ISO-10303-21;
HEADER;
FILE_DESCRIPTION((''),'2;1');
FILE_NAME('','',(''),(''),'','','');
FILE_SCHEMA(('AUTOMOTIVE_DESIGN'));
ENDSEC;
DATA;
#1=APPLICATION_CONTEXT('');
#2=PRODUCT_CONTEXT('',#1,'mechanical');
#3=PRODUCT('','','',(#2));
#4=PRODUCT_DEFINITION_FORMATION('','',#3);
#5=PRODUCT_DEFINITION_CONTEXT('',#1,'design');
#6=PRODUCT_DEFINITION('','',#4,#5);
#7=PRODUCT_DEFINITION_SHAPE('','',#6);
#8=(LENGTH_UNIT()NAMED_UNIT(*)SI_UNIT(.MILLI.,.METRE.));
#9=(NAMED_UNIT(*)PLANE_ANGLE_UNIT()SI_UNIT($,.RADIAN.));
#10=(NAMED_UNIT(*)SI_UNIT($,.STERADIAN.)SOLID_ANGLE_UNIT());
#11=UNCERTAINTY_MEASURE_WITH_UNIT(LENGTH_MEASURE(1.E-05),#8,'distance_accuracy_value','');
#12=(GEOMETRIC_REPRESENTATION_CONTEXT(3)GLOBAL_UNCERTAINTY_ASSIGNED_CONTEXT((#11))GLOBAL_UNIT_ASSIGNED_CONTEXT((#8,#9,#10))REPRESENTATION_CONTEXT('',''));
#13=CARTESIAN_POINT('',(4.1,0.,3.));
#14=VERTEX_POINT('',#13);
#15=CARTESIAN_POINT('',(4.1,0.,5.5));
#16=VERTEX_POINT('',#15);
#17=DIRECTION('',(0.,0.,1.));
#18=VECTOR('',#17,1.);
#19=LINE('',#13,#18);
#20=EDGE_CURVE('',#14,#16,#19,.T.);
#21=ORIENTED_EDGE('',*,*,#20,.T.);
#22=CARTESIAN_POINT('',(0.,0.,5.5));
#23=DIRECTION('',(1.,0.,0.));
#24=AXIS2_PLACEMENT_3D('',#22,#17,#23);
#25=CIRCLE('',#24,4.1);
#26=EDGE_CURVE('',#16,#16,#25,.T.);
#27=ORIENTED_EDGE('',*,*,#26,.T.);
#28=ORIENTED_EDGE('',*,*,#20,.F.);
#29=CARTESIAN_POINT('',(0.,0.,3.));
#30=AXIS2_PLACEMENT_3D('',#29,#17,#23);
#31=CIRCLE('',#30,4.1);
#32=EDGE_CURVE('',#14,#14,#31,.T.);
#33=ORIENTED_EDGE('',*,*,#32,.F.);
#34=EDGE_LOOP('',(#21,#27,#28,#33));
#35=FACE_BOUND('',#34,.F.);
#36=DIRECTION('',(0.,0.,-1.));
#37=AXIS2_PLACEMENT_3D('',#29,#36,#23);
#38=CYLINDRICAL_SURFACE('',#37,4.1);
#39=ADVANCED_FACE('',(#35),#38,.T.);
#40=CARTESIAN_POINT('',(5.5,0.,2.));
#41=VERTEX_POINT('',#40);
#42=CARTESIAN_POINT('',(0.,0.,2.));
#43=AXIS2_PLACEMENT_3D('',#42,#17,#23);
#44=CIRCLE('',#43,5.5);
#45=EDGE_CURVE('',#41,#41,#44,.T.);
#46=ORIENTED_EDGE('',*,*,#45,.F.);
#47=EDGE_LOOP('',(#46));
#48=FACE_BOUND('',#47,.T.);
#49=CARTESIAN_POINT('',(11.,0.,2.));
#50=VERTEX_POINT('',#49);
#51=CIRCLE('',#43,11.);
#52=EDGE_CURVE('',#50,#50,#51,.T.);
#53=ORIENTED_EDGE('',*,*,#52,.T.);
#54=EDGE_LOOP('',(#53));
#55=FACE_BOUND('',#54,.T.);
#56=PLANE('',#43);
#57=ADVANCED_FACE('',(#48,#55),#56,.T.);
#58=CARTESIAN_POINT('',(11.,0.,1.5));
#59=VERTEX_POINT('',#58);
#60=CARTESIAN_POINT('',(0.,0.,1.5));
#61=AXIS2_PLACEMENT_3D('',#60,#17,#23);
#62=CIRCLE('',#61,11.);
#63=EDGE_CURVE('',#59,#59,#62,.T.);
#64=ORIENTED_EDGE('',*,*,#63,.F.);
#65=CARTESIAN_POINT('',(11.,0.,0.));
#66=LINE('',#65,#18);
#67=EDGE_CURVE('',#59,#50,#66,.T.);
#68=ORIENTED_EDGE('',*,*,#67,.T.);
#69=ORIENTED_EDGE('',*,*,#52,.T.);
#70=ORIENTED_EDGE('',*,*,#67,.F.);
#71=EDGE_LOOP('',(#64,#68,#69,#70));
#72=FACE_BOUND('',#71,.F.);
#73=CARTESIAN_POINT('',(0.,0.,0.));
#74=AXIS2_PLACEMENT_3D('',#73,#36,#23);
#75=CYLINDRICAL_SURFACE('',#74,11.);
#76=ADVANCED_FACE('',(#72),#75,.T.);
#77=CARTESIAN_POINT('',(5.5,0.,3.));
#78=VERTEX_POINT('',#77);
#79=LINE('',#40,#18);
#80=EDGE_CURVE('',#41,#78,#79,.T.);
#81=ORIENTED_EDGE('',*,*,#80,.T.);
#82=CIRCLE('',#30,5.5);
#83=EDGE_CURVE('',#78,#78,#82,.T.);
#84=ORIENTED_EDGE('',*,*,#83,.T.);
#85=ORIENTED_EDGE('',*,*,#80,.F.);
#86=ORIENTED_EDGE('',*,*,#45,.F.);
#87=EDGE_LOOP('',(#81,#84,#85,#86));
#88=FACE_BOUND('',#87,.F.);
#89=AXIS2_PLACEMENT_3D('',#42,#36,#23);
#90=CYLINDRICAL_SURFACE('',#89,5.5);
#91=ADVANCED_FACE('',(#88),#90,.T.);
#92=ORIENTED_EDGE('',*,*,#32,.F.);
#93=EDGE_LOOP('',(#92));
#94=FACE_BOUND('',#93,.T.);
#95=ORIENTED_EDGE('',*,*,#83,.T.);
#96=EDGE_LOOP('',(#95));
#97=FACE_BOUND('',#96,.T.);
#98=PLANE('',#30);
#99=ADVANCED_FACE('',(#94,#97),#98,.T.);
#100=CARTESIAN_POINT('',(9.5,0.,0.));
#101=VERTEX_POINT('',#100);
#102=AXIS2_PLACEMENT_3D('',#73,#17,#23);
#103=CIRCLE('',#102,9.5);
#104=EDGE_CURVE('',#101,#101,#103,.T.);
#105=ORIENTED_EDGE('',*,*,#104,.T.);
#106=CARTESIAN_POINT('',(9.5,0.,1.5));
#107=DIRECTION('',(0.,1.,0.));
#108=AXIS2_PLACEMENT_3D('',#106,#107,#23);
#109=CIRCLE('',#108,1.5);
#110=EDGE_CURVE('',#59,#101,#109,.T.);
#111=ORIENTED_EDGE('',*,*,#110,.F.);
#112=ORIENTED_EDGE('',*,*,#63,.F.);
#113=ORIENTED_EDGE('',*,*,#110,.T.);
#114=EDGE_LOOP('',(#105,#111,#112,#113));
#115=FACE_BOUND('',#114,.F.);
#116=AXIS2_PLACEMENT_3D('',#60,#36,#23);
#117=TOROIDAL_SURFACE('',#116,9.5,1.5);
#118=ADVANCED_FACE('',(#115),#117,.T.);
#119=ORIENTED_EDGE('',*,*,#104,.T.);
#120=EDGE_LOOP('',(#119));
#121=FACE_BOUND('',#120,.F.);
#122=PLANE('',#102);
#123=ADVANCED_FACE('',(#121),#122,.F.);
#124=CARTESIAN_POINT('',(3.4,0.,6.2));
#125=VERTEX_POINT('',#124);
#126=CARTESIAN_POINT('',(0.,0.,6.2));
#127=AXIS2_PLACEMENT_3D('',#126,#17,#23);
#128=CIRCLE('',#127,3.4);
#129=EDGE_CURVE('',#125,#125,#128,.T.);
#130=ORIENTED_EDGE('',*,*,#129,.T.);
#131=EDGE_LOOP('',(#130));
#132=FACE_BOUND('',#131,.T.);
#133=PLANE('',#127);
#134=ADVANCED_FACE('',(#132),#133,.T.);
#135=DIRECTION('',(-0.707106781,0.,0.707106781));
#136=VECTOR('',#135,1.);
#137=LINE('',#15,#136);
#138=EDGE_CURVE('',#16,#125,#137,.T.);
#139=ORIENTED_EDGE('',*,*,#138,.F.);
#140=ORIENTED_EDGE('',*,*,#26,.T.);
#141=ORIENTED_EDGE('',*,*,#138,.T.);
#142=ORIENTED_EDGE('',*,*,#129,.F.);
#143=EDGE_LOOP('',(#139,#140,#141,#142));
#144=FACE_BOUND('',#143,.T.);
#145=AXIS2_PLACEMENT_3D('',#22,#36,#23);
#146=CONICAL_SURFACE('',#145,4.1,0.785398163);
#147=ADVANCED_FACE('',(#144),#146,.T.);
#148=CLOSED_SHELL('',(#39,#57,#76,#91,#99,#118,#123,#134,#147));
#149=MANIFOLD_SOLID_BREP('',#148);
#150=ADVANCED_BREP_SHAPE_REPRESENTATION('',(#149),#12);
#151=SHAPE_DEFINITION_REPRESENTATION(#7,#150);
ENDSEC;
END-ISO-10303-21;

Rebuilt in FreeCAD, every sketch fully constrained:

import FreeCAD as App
import Part
import Sketcher


def edges_at(feature, points):
    """Names of the edges that pass closest to the given points."""
    edges = feature.Shape.Edges
    near = lambda p: min(range(len(edges)), key=lambda i: edges[i].distToShape(Part.Vertex(*p))[0])
    return sorted({f"Edge{near(p) + 1}" for p in points})

doc = App.newDocument("Part")
body = doc.addObject("PartDesign::Body", "Body")

sketch1 = body.newObject("Sketcher::SketchObject", "Sketch")
sketch1.AttachmentSupport = (doc.getObject("XY_Plane"), [""])
sketch1.MapMode = "FlatFace"
sketch1.addGeometry(Part.Circle(App.Vector(0, 0, 0), App.Vector(0, 0, 1), 11), False)
sketch1.addConstraint(Sketcher.Constraint("Coincident", 0, 3, -1, 1))
sketch1.addConstraint(Sketcher.Constraint("Diameter", 0, 22.0))
pad1 = body.newObject("PartDesign::Pad", "Pad")
pad1.Profile = sketch1
pad1.Length = 2

sketch2 = body.newObject("Sketcher::SketchObject", "Sketch001")
sketch2.AttachmentSupport = (doc.getObject("XY_Plane"), [""])
sketch2.MapMode = "FlatFace"
sketch2.AttachmentOffset = App.Placement(App.Vector(0, 0, 2), App.Rotation())
sketch2.addGeometry(Part.Circle(App.Vector(0, 0, 0), App.Vector(0, 0, 1), 6), False)
sketch2.addConstraint(Sketcher.Constraint("Coincident", 0, 3, -1, 1))
sketch2.addConstraint(Sketcher.Constraint("Diameter", 0, 11.0))
pad2 = body.newObject("PartDesign::Pad", "Pad001")
pad2.Profile = sketch2
pad2.Length = 1

sketch3 = body.newObject("Sketcher::SketchObject", "Sketch002")
sketch3.AttachmentSupport = (doc.getObject("XY_Plane"), [""])
sketch3.MapMode = "FlatFace"
sketch3.AttachmentOffset = App.Placement(App.Vector(0, 0, 3), App.Rotation())
sketch3.addGeometry(Part.Circle(App.Vector(0, 0, 0), App.Vector(0, 0, 1), 4.1), False)
sketch3.addConstraint(Sketcher.Constraint("Coincident", 0, 3, -1, 1))
sketch3.addConstraint(Sketcher.Constraint("Diameter", 0, 8.2))
pad3 = body.newObject("PartDesign::Pad", "Pad002")
pad3.Profile = sketch3
pad3.Length = 3.2
doc.recompute()

fillet = body.newObject("PartDesign::Fillet", "Fillet")
fillet.Base = (pad3, edges_at(pad3, [(-11, 0, 0)]))
fillet.Radius = 1.5
doc.recompute()

chamfer = body.newObject("PartDesign::Chamfer", "Chamfer")
chamfer.Base = (fillet, edges_at(fillet, [(-4.1, 0, 6.2)]))
chamfer.Size = 0.7

doc.recompute()
